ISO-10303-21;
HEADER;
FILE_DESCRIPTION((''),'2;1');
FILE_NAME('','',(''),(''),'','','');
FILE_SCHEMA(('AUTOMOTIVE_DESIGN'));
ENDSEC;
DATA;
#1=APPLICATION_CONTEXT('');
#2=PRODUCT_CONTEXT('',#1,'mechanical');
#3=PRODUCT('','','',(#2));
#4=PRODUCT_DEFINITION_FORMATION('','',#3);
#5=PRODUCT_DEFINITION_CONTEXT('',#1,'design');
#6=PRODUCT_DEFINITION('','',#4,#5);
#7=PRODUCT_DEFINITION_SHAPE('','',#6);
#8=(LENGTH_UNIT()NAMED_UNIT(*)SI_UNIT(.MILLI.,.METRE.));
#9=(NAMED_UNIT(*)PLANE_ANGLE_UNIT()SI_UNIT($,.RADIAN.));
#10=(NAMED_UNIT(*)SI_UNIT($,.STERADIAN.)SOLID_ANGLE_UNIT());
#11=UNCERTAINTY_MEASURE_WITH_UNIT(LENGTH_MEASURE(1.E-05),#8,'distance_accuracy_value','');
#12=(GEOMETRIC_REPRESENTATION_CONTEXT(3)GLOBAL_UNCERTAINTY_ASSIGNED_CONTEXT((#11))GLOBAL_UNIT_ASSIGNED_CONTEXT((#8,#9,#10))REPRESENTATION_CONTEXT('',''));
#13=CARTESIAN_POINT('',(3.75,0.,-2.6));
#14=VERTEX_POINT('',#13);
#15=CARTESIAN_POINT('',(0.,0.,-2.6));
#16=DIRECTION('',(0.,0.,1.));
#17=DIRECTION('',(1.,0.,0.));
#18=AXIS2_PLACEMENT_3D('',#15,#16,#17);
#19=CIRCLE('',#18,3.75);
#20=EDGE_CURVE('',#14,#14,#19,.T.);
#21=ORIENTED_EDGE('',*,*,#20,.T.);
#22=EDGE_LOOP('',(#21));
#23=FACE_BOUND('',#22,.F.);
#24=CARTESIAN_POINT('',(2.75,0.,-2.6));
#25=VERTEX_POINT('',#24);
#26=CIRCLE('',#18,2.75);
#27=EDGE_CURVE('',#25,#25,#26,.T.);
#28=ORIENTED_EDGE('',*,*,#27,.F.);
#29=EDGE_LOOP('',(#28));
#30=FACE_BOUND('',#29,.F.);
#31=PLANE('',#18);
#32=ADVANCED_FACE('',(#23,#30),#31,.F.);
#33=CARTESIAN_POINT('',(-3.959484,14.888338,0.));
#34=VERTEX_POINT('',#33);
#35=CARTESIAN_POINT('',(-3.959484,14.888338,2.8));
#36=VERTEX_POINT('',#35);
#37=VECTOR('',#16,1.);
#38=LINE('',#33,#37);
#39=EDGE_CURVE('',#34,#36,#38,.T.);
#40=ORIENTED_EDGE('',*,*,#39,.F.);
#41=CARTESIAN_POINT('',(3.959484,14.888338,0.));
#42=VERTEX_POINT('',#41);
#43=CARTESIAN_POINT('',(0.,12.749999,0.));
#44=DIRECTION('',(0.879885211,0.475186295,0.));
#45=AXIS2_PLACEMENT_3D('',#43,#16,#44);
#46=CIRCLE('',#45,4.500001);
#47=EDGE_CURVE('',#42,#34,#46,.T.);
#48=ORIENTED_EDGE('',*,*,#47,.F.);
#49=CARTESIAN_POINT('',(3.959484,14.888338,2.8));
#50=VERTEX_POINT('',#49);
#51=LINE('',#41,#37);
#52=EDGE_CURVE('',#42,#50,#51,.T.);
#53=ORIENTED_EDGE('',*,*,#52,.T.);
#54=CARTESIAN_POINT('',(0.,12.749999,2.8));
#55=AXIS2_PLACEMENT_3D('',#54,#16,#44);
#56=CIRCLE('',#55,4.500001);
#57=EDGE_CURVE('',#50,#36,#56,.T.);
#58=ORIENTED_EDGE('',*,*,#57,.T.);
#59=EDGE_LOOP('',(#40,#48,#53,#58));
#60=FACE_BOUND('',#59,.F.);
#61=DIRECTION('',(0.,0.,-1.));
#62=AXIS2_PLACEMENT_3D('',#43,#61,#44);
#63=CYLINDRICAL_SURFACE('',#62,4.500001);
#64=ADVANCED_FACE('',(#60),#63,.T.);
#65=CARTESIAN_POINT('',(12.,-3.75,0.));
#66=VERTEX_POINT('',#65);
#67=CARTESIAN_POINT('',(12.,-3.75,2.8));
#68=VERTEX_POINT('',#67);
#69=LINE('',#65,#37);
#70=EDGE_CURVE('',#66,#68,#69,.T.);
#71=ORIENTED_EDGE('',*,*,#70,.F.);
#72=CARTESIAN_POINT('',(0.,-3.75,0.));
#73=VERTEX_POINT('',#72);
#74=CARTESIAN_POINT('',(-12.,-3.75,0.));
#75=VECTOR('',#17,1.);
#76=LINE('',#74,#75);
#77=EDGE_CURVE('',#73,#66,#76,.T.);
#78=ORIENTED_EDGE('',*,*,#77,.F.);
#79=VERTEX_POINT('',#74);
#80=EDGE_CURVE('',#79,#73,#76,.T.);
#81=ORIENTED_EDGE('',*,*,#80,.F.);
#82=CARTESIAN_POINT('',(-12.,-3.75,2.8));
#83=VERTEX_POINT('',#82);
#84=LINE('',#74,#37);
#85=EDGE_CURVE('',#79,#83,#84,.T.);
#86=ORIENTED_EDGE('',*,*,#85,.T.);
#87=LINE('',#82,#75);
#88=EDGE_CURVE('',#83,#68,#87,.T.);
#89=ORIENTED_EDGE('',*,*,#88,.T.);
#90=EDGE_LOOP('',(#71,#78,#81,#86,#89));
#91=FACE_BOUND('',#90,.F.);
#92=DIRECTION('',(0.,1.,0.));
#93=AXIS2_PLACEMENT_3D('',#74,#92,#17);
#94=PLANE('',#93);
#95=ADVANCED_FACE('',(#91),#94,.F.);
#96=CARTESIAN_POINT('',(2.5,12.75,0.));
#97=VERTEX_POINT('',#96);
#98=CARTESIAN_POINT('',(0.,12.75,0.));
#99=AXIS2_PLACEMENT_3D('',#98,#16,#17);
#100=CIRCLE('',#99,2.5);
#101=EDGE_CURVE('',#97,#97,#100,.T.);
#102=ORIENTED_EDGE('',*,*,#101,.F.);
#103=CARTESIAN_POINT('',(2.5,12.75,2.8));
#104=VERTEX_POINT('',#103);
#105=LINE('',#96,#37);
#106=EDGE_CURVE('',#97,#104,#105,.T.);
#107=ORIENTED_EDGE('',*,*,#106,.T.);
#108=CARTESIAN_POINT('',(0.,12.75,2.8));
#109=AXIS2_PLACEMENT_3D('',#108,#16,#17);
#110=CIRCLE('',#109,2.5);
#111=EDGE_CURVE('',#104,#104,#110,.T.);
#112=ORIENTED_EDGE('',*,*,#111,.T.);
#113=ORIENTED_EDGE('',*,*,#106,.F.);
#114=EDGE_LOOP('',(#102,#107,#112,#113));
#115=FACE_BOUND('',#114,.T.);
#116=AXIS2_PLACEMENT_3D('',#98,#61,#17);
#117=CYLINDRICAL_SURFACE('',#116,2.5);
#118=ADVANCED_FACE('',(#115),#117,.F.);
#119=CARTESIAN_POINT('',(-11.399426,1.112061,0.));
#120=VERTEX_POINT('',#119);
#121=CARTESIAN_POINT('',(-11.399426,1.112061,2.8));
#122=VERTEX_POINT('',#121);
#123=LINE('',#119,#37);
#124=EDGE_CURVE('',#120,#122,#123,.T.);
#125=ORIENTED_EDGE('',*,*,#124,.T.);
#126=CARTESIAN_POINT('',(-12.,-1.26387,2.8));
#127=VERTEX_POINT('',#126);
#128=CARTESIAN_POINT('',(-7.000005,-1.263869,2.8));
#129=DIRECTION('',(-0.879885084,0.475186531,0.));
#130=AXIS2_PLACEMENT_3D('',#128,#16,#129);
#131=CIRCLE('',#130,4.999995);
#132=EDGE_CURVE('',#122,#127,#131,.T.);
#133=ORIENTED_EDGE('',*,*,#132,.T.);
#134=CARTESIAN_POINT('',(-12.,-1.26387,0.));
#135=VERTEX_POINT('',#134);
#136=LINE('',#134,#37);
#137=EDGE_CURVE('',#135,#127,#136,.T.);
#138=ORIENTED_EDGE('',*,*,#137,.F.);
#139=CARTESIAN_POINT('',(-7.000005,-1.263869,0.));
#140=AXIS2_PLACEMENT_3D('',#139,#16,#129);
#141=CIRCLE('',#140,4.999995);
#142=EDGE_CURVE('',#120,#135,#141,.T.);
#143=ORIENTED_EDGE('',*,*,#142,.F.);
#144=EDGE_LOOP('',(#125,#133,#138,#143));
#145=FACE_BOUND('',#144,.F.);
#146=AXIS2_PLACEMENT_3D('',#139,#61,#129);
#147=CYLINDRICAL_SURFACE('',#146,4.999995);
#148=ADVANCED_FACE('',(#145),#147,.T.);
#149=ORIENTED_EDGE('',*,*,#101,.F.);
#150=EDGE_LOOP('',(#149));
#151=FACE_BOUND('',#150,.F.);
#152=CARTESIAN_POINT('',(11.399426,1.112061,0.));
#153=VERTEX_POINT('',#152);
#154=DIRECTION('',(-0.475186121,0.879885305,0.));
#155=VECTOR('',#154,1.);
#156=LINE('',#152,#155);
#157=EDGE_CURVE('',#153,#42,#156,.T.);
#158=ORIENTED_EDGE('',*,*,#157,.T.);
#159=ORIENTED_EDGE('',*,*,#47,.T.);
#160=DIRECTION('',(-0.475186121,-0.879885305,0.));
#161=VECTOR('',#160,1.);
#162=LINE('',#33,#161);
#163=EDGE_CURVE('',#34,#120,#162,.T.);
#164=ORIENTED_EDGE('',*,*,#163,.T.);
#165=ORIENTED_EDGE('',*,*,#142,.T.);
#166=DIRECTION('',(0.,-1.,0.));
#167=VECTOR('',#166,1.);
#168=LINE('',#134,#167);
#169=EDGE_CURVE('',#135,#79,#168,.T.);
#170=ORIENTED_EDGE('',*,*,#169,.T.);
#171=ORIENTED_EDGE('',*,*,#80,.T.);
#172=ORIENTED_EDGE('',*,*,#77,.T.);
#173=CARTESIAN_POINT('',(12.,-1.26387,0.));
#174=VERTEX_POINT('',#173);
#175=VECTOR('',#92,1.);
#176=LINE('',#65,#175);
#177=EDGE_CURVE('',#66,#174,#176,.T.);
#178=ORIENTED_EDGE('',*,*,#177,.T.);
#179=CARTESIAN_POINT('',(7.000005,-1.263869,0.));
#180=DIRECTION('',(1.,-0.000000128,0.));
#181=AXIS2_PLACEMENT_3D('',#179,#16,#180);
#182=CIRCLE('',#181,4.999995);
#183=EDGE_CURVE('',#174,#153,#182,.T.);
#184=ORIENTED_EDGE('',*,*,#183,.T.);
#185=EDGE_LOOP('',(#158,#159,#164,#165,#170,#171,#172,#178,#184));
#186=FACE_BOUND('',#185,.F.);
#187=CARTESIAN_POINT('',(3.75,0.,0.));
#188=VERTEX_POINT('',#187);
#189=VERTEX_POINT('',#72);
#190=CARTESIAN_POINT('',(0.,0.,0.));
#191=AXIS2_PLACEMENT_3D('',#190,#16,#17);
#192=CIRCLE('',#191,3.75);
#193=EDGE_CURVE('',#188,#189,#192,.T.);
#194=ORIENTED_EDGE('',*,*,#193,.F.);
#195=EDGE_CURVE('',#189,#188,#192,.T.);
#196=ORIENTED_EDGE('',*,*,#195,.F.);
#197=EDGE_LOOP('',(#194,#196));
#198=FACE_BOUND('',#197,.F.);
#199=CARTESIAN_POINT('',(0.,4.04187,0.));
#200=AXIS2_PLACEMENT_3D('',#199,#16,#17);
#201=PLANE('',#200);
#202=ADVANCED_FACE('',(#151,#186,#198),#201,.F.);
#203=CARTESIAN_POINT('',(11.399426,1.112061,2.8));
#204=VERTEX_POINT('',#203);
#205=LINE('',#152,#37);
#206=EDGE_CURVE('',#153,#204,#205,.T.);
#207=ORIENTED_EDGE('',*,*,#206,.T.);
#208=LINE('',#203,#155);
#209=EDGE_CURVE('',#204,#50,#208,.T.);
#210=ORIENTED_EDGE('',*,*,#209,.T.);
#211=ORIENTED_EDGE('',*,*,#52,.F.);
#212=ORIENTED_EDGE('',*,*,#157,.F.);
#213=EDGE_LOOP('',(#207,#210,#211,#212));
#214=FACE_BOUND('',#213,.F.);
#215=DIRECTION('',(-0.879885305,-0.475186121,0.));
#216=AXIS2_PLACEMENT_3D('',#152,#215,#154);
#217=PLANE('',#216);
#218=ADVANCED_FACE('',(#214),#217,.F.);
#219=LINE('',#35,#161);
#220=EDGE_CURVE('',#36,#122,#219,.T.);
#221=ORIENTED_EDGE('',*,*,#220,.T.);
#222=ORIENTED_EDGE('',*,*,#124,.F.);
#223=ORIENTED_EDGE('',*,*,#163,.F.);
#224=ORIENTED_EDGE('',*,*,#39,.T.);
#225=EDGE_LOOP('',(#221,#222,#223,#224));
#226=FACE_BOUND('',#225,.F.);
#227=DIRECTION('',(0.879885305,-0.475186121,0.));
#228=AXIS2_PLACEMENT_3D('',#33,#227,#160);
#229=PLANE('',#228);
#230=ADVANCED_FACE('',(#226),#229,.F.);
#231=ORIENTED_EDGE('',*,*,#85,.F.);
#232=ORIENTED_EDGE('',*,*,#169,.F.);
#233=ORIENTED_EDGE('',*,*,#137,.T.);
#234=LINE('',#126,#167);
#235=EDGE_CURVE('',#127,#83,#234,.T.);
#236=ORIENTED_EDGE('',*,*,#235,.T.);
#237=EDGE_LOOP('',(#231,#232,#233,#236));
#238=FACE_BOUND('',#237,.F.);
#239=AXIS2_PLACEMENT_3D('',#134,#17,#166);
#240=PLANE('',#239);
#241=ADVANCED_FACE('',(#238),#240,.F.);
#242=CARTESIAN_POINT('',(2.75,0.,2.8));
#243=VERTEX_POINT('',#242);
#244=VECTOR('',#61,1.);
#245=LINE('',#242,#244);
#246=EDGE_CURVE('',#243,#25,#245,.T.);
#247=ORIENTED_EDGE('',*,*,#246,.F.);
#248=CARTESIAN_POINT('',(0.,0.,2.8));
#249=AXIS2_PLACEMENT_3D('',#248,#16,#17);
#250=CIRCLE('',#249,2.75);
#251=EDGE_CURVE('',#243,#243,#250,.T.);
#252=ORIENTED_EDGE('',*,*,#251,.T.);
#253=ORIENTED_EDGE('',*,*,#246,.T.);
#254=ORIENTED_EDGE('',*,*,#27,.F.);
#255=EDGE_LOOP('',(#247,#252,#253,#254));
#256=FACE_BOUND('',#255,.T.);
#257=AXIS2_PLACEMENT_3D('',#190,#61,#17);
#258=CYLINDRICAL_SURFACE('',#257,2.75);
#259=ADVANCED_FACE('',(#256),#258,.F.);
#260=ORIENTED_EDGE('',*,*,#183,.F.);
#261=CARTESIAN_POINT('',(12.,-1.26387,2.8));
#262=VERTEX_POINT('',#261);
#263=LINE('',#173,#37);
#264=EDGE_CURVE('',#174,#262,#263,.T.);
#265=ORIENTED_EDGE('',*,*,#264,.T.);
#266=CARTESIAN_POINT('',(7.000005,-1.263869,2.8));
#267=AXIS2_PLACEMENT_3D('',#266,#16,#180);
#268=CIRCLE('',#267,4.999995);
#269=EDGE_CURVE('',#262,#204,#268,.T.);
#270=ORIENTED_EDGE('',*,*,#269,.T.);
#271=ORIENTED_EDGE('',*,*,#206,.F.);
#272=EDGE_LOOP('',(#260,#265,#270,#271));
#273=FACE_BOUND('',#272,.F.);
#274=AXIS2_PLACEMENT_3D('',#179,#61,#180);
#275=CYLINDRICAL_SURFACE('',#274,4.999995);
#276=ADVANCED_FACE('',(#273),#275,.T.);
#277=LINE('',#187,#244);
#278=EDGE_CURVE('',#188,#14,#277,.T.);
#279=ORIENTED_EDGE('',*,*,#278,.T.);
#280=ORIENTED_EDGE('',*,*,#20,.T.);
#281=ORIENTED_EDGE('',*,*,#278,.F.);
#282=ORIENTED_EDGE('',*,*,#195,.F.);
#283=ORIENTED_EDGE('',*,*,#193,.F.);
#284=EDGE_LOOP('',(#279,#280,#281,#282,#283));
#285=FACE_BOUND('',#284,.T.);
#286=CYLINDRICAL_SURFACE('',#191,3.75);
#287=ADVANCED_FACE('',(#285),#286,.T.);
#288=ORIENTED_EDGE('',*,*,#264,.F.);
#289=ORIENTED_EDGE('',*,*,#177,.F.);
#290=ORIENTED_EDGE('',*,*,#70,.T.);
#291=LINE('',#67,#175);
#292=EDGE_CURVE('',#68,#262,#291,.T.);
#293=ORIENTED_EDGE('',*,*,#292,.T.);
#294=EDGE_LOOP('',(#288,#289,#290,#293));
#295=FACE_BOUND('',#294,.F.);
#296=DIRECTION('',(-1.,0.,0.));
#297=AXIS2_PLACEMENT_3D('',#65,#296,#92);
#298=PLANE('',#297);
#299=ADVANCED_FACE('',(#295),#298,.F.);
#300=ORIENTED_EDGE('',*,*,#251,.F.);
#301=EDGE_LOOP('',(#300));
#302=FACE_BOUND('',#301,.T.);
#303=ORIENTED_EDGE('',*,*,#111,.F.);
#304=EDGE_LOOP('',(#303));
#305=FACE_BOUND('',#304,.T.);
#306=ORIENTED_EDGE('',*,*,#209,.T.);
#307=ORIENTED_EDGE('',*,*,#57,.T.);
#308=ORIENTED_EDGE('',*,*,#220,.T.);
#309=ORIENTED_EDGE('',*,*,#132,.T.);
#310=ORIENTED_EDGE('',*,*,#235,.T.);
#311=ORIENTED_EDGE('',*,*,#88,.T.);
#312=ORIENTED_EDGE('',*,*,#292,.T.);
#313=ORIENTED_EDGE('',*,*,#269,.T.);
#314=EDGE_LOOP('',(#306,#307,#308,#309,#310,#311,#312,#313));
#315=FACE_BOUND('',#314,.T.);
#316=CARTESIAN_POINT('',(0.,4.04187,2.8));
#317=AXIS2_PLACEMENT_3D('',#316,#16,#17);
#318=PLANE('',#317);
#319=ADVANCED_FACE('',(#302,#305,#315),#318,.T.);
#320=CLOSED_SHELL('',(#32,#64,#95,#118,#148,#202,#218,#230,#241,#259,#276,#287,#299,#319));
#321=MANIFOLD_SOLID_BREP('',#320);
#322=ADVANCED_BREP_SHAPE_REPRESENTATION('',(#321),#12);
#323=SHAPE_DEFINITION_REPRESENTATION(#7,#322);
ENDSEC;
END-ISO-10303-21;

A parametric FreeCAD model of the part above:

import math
import FreeCAD as App
import Part
import Sketcher
from FreeCAD import Vector

doc = App.newDocument("Part")
body = doc.addObject("PartDesign::Body", "Body")

# Sketch on XY plane
sketch1 = doc.addObject("Sketcher::SketchObject", "Sketch")
body.addObject(sketch1)
sketch1.AttachmentSupport = (doc.XY_Plane, [""])
sketch1.MapMode = "FlatFace"
sketch1.addGeometry(Part.Circle(Vector(0, 0, 0), Vector(0, 0, 1), 3.75), False)
sketch1.addGeometry(Part.Circle(Vector(0, 0, 0), Vector(0, 0, 1), 2.75), False)
sketch1.addConstraint(Sketcher.Constraint("Coincident", 0, 3, -1, 1))
sketch1.addConstraint(Sketcher.Constraint("Coincident", 1, 3, -1, 1))
sketch1.addConstraint(Sketcher.Constraint("Diameter", 0, 7.5))
sketch1.addConstraint(Sketcher.Constraint("Diameter", 1, 5.5))
pad1 = doc.addObject("PartDesign::Pad", "Pad")
body.addObject(pad1)
pad1.Profile = sketch1
pad1.Length = 2.6
pad1.Reversed = True

# Sketch on XY plane
sketch2 = doc.addObject("Sketcher::SketchObject", "Sketch001")
body.addObject(sketch2)
sketch2.AttachmentSupport = (doc.XY_Plane, [""])
sketch2.MapMode = "FlatFace"
sketch2.addGeometry(Part.LineSegment(Vector(-12, -3.75, 0), Vector(12, -3.75, 0)), False)
sketch2.addGeometry(Part.LineSegment(Vector(12, -3.75, 0), Vector(12, -1.26387, 0)), False)
sketch2.addGeometry(Part.ArcOfCircle(Part.Circle(Vector(7.000005, -1.263869, 0), Vector(0, 0, 1), 4.999995), math.radians(-0.000007), math.radians(28.371496)), False)
sketch2.addGeometry(Part.LineSegment(Vector(11.399426, 1.112061, 0), Vector(3.959484, 14.888338, 0)), False)
sketch2.addGeometry(Part.ArcOfCircle(Part.Circle(Vector(0, 12.749999, 0), Vector(0, 0, 1), 4.500001), math.radians(28.37148), math.radians(151.62852)), False)
sketch2.addGeometry(Part.LineSegment(Vector(-3.959484, 14.888338, 0), Vector(-11.399426, 1.112061, 0)), False)
sketch2.addGeometry(Part.ArcOfCircle(Part.Circle(Vector(-7.000005, -1.263869, 0), Vector(0, 0, 1), 4.999995), math.radians(151.628504), math.radians(180.000007)), False)
sketch2.addGeometry(Part.LineSegment(Vector(-12, -1.26387, 0), Vector(-12, -3.75, 0)), False)
sketch2.addGeometry(Part.Circle(Vector(0, 0, 0), Vector(0, 0, 1), 2.75), False)
sketch2.addGeometry(Part.Circle(Vector(0, 12.75, 0), Vector(0, 0, 1), 2.5), False)
sketch2.addConstraint(Sketcher.Constraint("Coincident", 0, 2, 1, 1))
sketch2.addConstraint(Sketcher.Constraint("Tangent", 1, 2, 2, 1))
sketch2.addConstraint(Sketcher.Constraint("Tangent", 2, 2, 3, 1))
sketch2.addConstraint(Sketcher.Constraint("Tangent", 3, 2, 4, 1))
sketch2.addConstraint(Sketcher.Constraint("Tangent", 4, 2, 5, 1))
sketch2.addConstraint(Sketcher.Constraint("Tangent", 5, 2, 6, 1))
sketch2.addConstraint(Sketcher.Constraint("Tangent", 6, 2, 7, 1))
sketch2.addConstraint(Sketcher.Constraint("Coincident", 7, 2, 0, 1))
sketch2.addConstraint(Sketcher.Constraint("Horizontal", 0))
sketch2.addConstraint(Sketcher.Constraint("Vertical", 1))
sketch2.addConstraint(Sketcher.Constraint("Vertical", 7))
sketch2.addConstraint(Sketcher.Constraint("Coincident", 8, 3, -1, 1))
sketch2.addConstraint(Sketcher.Constraint("Coincident", 9, 3, 4, 3))
sketch2.addConstraint(Sketcher.Constraint("Equal", 2, 6))
sketch2.addConstraint(Sketcher.Constraint("Symmetric", 2, 3, 6, 3, -2))
sketch2.addConstraint(Sketcher.Constraint("PointOnObject", 4, 3, -2))
sketch2.addConstraint(Sketcher.Constraint("Diameter", 9, 5.0))
sketch2.addConstraint(Sketcher.Constraint("Diameter", 8, 5.5))
sketch2.addConstraint(Sketcher.Constraint("Radius", 4, 4.500001))
sketch2.addConstraint(Sketcher.Constraint("DistanceX", 0, 1, 0, 2, 24.0))
sketch2.addConstraint(Sketcher.Constraint("DistanceY", 0, 2, 4, 3, 16.499999))
sketch2.addConstraint(Sketcher.Constraint("DistanceY", -1, 1, 4, 3, 12.749999))
sketch2.addConstraint(Sketcher.Constraint("Radius", 2, 4.999995))
sketch2.addConstraint(Sketcher.Constraint("Distance", 3, 15.656901))
pad2 = doc.addObject("PartDesign::Pad", "Pad001")
body.addObject(pad2)
pad2.Profile = sketch2
pad2.Length = 2.8

doc.recompute()
